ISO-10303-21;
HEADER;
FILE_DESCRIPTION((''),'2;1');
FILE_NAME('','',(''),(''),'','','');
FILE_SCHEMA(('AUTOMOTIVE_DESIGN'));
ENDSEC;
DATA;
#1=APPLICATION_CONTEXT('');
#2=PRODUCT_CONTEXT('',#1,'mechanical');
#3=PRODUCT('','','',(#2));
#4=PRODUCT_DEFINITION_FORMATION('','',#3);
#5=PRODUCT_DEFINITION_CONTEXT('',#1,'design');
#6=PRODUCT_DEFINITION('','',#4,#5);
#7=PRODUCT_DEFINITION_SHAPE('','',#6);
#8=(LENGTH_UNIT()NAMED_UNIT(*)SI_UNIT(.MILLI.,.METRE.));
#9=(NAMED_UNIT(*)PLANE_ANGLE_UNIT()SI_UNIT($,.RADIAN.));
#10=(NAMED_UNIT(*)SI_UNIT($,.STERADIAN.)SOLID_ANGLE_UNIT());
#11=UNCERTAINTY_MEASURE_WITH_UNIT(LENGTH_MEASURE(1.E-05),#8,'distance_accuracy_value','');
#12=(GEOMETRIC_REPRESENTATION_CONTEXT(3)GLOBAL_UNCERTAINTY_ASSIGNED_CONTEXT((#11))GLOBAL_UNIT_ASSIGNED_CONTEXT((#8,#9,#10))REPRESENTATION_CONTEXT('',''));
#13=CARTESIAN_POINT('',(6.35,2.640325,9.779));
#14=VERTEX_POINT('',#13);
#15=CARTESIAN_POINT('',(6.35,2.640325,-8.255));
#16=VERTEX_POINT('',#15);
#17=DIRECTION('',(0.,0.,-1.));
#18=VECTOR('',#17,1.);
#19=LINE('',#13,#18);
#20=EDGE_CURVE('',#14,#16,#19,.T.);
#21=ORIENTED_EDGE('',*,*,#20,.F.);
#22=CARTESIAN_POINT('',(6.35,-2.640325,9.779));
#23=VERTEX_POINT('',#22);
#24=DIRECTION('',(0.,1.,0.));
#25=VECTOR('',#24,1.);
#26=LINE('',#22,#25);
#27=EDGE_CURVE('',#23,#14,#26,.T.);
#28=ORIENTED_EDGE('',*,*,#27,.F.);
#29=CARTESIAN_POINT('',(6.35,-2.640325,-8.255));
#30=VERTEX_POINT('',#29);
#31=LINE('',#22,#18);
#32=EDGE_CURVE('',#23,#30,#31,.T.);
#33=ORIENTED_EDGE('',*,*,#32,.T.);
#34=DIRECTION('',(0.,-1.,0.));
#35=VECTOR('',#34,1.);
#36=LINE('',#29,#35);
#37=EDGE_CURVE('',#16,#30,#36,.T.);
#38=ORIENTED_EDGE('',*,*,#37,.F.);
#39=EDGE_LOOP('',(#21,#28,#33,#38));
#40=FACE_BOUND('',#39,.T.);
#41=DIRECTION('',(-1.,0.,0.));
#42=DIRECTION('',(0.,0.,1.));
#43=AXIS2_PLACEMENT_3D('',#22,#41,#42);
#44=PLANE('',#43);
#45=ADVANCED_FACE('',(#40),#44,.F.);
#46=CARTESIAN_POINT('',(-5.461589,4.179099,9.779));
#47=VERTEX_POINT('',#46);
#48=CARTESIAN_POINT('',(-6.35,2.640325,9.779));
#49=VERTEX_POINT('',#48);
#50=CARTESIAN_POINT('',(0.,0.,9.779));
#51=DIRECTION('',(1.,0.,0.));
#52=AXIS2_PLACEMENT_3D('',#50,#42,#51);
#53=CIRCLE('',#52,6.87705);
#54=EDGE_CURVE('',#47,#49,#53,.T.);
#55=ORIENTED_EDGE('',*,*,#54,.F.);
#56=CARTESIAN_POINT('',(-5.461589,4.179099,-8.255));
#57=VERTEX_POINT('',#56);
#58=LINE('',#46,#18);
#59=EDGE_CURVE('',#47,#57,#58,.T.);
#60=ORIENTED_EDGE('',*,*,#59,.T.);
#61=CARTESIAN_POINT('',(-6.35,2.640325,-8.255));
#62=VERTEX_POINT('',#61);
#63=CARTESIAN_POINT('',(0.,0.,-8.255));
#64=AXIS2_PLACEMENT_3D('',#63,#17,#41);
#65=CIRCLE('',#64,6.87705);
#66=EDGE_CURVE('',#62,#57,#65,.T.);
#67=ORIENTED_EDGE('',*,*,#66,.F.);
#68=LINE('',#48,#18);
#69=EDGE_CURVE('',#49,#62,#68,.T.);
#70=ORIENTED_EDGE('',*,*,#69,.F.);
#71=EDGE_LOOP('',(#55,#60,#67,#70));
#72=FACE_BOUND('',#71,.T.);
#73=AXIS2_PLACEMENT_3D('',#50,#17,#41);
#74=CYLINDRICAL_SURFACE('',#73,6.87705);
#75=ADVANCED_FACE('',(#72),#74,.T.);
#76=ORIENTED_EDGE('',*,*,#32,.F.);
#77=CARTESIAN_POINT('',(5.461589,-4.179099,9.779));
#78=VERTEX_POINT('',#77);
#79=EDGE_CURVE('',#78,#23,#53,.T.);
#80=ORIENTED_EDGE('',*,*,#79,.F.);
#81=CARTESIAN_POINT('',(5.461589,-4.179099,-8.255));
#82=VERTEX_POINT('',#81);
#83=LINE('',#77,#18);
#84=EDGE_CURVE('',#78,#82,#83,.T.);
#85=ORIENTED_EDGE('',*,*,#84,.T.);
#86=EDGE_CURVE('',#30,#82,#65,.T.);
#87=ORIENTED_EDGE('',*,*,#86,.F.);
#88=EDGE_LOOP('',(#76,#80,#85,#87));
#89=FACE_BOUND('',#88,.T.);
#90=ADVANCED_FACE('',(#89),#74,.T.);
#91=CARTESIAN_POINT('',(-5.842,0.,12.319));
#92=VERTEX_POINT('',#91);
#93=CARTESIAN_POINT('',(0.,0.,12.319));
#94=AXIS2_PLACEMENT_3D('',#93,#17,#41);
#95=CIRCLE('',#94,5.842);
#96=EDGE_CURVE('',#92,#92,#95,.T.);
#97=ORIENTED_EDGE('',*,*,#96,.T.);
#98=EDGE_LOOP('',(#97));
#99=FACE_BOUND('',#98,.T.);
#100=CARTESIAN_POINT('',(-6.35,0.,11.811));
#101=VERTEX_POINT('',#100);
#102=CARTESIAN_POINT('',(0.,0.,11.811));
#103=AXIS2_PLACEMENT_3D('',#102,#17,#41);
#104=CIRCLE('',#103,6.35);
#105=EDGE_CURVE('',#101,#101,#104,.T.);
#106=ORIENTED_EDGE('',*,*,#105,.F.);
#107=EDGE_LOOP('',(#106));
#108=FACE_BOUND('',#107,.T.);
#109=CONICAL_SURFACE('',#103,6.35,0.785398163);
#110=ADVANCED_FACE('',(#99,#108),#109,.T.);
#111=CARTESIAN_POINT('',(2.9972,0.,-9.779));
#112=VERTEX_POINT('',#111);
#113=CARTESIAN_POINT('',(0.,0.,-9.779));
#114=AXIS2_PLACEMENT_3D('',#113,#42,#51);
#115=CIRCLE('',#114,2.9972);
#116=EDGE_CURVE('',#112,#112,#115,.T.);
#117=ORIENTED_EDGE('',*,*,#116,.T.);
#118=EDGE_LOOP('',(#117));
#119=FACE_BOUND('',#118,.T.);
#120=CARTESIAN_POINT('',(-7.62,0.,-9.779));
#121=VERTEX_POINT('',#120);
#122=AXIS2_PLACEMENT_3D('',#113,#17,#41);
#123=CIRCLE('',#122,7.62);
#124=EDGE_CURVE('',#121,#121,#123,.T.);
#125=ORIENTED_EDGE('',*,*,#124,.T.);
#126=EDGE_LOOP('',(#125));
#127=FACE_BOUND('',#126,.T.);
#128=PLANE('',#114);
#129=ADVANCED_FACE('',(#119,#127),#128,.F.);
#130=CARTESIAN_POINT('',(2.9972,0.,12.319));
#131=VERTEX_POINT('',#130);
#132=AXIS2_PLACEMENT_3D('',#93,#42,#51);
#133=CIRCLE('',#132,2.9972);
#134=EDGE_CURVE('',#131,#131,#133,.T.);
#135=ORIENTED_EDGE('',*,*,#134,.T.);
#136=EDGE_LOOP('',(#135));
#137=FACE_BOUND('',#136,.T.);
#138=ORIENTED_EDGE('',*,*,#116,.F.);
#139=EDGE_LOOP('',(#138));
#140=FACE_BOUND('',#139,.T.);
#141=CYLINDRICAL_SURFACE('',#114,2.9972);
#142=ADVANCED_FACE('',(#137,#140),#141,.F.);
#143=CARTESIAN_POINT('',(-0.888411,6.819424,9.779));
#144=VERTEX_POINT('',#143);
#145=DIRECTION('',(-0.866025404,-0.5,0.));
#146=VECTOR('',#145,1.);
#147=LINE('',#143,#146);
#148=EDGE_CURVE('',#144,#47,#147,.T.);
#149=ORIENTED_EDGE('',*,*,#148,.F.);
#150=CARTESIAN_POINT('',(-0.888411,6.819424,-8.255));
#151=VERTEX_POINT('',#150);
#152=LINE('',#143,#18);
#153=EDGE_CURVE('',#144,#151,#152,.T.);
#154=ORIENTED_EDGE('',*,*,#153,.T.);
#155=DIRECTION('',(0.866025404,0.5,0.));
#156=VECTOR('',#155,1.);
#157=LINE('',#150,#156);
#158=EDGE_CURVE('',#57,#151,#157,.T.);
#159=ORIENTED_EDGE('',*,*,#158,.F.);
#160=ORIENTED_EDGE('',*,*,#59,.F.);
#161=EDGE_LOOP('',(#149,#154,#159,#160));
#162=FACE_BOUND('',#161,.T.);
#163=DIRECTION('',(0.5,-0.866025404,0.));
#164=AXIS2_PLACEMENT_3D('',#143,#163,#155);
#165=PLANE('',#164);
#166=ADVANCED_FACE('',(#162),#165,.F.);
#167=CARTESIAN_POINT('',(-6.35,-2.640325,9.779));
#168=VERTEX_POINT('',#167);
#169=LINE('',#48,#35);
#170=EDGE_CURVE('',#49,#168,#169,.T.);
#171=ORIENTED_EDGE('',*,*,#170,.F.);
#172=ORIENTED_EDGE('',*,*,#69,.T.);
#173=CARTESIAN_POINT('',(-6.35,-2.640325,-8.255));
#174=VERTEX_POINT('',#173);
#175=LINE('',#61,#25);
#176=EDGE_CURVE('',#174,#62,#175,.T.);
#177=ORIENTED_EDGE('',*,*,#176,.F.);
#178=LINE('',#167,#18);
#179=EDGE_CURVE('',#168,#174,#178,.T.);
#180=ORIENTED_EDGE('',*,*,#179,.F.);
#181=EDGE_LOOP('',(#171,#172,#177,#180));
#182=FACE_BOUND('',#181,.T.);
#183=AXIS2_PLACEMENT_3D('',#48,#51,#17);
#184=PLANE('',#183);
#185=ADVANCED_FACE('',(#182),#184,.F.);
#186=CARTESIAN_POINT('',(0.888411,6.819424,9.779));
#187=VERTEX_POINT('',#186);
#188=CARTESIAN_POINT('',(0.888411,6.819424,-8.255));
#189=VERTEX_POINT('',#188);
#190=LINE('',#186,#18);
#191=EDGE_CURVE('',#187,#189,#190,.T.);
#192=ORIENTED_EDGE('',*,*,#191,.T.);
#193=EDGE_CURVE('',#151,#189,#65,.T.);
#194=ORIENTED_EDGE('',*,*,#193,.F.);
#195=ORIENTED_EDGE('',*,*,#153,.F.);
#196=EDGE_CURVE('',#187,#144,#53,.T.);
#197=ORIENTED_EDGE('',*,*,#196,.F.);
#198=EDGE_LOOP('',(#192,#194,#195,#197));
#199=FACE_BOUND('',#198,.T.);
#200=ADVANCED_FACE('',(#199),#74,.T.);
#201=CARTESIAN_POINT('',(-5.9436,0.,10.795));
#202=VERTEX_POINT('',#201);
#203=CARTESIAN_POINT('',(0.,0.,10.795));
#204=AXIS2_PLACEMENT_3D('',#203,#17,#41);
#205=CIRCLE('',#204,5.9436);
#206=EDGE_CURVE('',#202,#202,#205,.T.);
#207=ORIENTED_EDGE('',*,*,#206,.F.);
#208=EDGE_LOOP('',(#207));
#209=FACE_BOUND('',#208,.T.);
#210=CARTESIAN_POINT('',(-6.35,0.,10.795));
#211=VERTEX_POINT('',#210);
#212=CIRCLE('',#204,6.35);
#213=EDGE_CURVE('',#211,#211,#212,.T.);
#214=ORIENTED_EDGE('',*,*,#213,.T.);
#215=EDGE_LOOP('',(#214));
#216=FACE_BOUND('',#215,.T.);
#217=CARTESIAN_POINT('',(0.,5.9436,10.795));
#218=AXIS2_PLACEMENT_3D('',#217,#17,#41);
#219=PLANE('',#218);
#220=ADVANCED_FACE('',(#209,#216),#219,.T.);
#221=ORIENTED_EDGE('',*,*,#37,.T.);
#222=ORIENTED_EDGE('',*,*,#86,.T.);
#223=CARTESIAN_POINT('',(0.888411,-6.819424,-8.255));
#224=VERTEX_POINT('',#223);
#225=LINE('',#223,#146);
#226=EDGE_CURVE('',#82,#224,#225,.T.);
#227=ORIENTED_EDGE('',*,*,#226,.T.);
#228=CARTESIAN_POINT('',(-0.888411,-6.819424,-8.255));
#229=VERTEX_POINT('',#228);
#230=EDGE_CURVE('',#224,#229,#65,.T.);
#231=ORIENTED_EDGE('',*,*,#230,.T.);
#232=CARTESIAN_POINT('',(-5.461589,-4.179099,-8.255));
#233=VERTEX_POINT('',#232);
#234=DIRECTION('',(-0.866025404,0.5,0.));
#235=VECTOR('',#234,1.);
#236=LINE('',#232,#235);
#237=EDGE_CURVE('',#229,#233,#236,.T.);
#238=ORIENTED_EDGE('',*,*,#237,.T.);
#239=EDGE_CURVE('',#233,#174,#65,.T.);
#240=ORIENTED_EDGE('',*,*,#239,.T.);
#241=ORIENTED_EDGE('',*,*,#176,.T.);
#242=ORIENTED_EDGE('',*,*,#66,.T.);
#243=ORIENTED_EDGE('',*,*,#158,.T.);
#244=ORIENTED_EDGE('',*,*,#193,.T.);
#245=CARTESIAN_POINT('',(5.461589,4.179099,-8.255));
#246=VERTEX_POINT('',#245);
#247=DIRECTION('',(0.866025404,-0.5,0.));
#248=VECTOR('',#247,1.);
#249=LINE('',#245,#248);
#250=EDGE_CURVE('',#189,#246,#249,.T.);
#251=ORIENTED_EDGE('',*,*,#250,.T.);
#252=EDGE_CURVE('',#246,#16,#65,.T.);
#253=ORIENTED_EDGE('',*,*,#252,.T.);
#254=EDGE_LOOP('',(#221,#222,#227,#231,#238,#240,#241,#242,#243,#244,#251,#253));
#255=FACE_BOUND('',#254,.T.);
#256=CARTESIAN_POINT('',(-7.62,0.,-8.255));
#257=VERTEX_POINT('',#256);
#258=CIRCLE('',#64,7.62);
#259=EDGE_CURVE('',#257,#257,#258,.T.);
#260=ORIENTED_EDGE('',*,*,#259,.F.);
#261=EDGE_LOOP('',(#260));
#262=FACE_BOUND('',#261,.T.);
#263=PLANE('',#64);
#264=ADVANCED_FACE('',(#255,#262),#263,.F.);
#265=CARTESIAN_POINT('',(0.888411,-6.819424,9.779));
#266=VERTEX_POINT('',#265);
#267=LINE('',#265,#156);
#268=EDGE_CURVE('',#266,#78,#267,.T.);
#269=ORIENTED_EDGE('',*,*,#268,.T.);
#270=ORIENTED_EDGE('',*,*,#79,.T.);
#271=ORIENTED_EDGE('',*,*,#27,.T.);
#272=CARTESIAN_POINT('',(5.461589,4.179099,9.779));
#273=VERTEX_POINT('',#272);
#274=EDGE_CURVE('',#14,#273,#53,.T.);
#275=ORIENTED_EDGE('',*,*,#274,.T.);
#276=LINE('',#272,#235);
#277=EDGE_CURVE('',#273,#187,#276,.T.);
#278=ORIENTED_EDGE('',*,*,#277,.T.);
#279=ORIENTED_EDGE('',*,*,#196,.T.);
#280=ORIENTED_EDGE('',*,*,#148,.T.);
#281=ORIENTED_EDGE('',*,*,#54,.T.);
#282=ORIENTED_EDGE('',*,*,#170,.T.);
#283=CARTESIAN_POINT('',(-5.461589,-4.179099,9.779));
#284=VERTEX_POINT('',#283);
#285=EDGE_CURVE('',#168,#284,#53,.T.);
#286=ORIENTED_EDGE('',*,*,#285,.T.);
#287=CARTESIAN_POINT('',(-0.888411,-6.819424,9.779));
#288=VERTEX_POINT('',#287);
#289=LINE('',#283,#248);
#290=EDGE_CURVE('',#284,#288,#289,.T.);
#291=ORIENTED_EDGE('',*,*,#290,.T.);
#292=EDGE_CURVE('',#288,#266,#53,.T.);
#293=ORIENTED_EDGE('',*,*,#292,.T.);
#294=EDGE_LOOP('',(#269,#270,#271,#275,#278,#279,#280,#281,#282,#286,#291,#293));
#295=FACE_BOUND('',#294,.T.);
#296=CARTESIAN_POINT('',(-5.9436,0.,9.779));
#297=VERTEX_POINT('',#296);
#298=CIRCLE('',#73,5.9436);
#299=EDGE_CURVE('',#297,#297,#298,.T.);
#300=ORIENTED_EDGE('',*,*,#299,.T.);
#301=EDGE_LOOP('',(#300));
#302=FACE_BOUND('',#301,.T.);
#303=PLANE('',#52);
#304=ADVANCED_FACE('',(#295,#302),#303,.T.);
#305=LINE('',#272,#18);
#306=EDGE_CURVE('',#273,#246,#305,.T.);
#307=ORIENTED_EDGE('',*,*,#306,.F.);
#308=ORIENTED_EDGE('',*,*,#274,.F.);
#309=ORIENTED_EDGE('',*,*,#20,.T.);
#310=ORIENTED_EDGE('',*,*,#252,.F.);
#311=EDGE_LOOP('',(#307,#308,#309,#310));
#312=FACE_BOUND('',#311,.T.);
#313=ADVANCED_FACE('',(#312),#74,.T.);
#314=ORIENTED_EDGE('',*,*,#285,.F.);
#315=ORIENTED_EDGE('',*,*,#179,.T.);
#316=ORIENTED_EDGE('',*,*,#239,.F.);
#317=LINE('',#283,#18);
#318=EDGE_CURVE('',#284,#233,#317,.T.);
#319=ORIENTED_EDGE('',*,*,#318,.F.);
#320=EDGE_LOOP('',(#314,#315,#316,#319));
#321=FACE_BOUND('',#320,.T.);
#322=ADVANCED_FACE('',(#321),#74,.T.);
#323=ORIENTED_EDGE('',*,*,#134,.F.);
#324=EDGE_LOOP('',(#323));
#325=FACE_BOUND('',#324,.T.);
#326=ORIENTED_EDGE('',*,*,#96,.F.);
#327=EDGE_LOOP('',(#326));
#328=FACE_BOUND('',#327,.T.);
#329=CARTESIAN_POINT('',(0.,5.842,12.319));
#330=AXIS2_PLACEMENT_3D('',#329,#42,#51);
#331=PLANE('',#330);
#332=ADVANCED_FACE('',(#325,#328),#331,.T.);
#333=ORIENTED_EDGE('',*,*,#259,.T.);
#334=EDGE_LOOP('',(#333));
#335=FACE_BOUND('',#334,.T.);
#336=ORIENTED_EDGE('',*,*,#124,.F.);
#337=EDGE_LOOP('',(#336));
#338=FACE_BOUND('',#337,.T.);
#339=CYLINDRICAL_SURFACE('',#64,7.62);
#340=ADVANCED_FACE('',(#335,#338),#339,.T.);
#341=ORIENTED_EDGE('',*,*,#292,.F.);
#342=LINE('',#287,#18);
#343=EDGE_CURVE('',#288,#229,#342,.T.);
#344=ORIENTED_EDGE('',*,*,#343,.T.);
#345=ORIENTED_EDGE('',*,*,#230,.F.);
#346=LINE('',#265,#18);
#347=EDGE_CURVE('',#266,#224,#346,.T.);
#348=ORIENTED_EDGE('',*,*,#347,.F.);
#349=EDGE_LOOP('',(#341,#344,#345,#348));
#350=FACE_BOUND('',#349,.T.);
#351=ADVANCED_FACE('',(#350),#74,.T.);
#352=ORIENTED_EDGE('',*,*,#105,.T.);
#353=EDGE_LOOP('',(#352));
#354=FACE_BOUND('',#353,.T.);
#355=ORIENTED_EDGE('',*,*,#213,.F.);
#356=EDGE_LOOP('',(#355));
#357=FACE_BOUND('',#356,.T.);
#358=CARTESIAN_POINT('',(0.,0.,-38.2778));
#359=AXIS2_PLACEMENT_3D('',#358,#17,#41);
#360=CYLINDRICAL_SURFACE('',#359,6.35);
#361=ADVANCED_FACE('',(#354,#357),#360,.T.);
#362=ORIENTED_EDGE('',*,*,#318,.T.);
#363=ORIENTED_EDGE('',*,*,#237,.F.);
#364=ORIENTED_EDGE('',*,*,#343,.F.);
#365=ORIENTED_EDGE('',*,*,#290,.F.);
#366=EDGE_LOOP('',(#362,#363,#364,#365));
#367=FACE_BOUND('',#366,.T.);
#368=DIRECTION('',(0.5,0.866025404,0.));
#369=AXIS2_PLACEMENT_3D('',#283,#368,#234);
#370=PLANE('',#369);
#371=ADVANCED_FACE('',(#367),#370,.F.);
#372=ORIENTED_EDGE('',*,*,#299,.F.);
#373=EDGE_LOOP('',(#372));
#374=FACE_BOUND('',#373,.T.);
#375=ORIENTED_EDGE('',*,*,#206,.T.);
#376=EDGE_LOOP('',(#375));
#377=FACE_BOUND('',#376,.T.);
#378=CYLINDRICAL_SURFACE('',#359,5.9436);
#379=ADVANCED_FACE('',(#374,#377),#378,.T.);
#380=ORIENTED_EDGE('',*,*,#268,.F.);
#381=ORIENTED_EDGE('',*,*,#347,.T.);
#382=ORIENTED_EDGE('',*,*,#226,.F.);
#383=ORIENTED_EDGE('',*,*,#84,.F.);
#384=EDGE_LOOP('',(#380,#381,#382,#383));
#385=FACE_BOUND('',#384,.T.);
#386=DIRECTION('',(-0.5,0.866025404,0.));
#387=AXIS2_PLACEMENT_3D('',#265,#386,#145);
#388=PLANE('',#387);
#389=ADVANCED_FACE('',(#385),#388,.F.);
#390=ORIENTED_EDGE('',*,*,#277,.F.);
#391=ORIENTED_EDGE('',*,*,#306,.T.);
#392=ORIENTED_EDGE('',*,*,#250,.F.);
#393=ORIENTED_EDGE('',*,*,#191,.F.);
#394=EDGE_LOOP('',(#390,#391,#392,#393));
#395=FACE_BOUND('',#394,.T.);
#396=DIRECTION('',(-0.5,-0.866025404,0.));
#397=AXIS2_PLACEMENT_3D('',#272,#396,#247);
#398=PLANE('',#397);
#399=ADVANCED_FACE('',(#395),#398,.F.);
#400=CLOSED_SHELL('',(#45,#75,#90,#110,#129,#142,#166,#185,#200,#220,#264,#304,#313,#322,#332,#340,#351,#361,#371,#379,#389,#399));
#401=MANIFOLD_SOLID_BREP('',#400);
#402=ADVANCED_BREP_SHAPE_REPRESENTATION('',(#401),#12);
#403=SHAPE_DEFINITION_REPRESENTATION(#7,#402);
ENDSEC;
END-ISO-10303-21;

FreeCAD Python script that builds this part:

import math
import FreeCAD as App
import Part
import Sketcher

V = App.Vector
Q = App.Units.Quantity

doc = App.newDocument("Part")
body = doc.addObject("PartDesign::Body", "Body")

# Sketch on XY plane
sketch1 = body.newObject("Sketcher::SketchObject", "Sketch")
sketch1.AttachmentSupport = (doc.getObject("XY_Plane"), [""])
sketch1.MapMode = "FlatFace"
sketch1.addGeometry(Part.Circle(V(0, 0, 0), V(0, 0, 1), 6), False)
sketch1.addConstraint([
    Sketcher.Constraint("Coincident", 0, 3, -1, 1),
    Sketcher.Constraint("Diameter", 0, Q("0.5 in")),
])
pad1 = body.newObject("PartDesign::Pad", "Pad")
pad1.Profile = sketch1
pad1.Type = "TwoLengths"
pad1.Length = Q("0.385 in")
pad1.Length2 = Q("0.385 in")

# Sketch on XY plane
sketch2 = body.newObject("Sketcher::SketchObject", "Sketch001")
sketch2.AttachmentSupport = (doc.getObject("XY_Plane"), [""])
sketch2.MapMode = "FlatFace"
sketch2.addGeometry([
    Part.LineSegment(V(-0.9, 6.8, 0), V(-5.5, 4.2, 0)),  # 0
    Part.ArcOfCircle(Part.Circle(V(0, 0, 0), V(0, 0, 1), 6.9), math.radians(142.58), math.radians(157.42)),  # 1
    Part.LineSegment(V(-6.3, 2.6, 0), V(-6.3, -2.6, 0)),  # 2
    Part.ArcOfCircle(Part.Circle(V(0, 0, 0), V(0, 0, 1), 6.9), math.radians(-157.42), math.radians(-142.58)),  # 3
    Part.LineSegment(V(-5.5, -4.2, 0), V(-0.9, -6.8, 0)),  # 4
    Part.ArcOfCircle(Part.Circle(V(0, 0, 0), V(0, 0, 1), 6.9), math.radians(-97.42), math.radians(-82.58)),  # 5
    Part.LineSegment(V(0.9, -6.8, 0), V(5.5, -4.2, 0)),  # 6
    Part.ArcOfCircle(Part.Circle(V(0, 0, 0), V(0, 0, 1), 6.9), math.radians(-37.42), math.radians(-22.58)),  # 7
    Part.LineSegment(V(6.3, -2.6, 0), V(6.3, 2.6, 0)),  # 8
    Part.ArcOfCircle(Part.Circle(V(0, 0, 0), V(0, 0, 1), 6.9), math.radians(22.58), math.radians(37.42)),  # 9
    Part.LineSegment(V(5.5, 4.2, 0), V(0.9, 6.8, 0)),  # 10
    Part.ArcOfCircle(Part.Circle(V(0, 0, 0), V(0, 0, 1), 6.9), math.radians(82.58), math.radians(97.42)),  # 11
], False)
sketch2.addConstraint([
    Sketcher.Constraint("Coincident", 0, 2, 1, 1),
    Sketcher.Constraint("Coincident", 1, 2, 2, 1),
    Sketcher.Constraint("Coincident", 2, 2, 3, 1),
    Sketcher.Constraint("Coincident", 3, 2, 4, 1),
    Sketcher.Constraint("Coincident", 4, 2, 5, 1),
    Sketcher.Constraint("Coincident", 5, 2, 6, 1),
    Sketcher.Constraint("Coincident", 6, 2, 7, 1),
    Sketcher.Constraint("Coincident", 7, 2, 8, 1),
    Sketcher.Constraint("Coincident", 8, 2, 9, 1),
    Sketcher.Constraint("Coincident", 9, 2, 10, 1),
    Sketcher.Constraint("Coincident", 10, 2, 11, 1),
    Sketcher.Constraint("Coincident", 11, 2, 0, 1),
    Sketcher.Constraint("Vertical", 2),
    Sketcher.Constraint("Vertical", 8),
    Sketcher.Constraint("Coincident", 1, 3, -1, 1),
    Sketcher.Constraint("Coincident", 3, 3, -1, 1),
    Sketcher.Constraint("Coincident", 5, 3, -1, 1),
    Sketcher.Constraint("Coincident", 7, 3, -1, 1),
    Sketcher.Constraint("Coincident", 9, 3, -1, 1),
    Sketcher.Constraint("Coincident", 11, 3, -1, 1),
    Sketcher.Constraint("Equal", 1, 3),
    Sketcher.Constraint("Equal", 3, 5),
    Sketcher.Constraint("Equal", 5, 7),
    Sketcher.Constraint("Equal", 7, 9),
    Sketcher.Constraint("Equal", 9, 11),
    Sketcher.Constraint("Parallel", 0, 6),
    Sketcher.Constraint("Parallel", 4, 10),
    Sketcher.Constraint("Horizontal", 4, 2, 5, 2),
    Sketcher.Constraint("Horizontal", 3, 2, 6, 2),
    Sketcher.Constraint("Horizontal", 2, 2, 7, 2),
    Sketcher.Constraint("Horizontal", 0, 2, 9, 2),
    Sketcher.Constraint("Vertical", 0, 2, 3, 2),
    Sketcher.Constraint("Angle", 0, Q("-150 deg")),
    Sketcher.Constraint("DistanceX", 1, 2, -1, 1, Q("0.25 in")),
    Sketcher.Constraint("DistanceX", 3, 2, 5, 2, Q("0.25 in")),
    Sketcher.Constraint("Radius", 1, Q("6.87705 mm")),
])
pad2 = body.newObject("PartDesign::Pad", "Pad001")
pad2.Profile = sketch2
pad2.Length = Q("0.77 in")
pad2.Midplane = True

# Sketch on YZ plane
sketch3 = body.newObject("Sketcher::SketchObject", "Sketch002")
sketch3.AttachmentSupport = (doc.getObject("YZ_Plane"), [""])
sketch3.MapMode = "FlatFace"
sketch3.addGeometry([
    Part.LineSegment(V(5.94, 9.78, 0), V(5.94, 10.79, 0)),  # 0
    Part.LineSegment(V(5.94, 10.79, 0), V(6.35, 10.79, 0)),  # 1
    Part.LineSegment(V(6.35, 10.79, 0), V(6.35, 11.81, 0)),  # 2
    Part.LineSegment(V(6.35, 11.81, 0), V(5.84, 12.32, 0)),  # 3
    Part.LineSegment(V(5.84, 12.32, 0), V(0, 12.32, 0)),  # 4
    Part.LineSegment(V(0, 12.32, 0), V(0, 9.78, 0)),  # 5
    Part.LineSegment(V(0, 9.78, 0), V(5.94, 9.78, 0)),  # 6
], False)
sketch3.addConstraint([
    Sketcher.Constraint("Coincident", 0, 2, 1, 1),
    Sketcher.Constraint("Coincident", 1, 2, 2, 1),
    Sketcher.Constraint("Coincident", 2, 2, 3, 1),
    Sketcher.Constraint("Coincident", 3, 2, 4, 1),
    Sketcher.Constraint("Coincident", 4, 2, 5, 1),
    Sketcher.Constraint("Coincident", 5, 2, 6, 1),
    Sketcher.Constraint("Coincident", 6, 2, 0, 1),
    Sketcher.Constraint("Vertical", 0),
    Sketcher.Constraint("Horizontal", 1),
    Sketcher.Constraint("Vertical", 2),
    Sketcher.Constraint("Horizontal", 4),
    Sketcher.Constraint("Vertical", 5),
    Sketcher.Constraint("Horizontal", 6),
    Sketcher.Constraint("PointOnObject", 4, 2, -2),
    Sketcher.Constraint("Equal", 0, 2),
    Sketcher.Constraint("DistanceY", 5, 2, 5, 1, Q("0.1 in")),
    Sketcher.Constraint("Angle", 3, Q("135 deg")),
    Sketcher.Constraint("DistanceX", 4, 2, 4, 1, Q("0.23 in")),
    Sketcher.Constraint("DistanceY", 0, 1, 0, 2, Q("0.04 in")),
    Sketcher.Constraint("DistanceX", 1, 1, 1, 2, Q("0.016 in")),
    Sketcher.Constraint("DistanceY", -1, 1, 0, 2, Q("0.425 in")),
])
revolution = body.newObject("PartDesign::Revolution", "Revolution")
revolution.Profile = sketch3
revolution.ReferenceAxis = (sketch3, ["V_Axis"])
revolution.Angle = 360

# Sketch on XY plane
sketch4 = body.newObject("Sketcher::SketchObject", "Sketch003")
sketch4.AttachmentSupport = (doc.getObject("XY_Plane"), [""])
sketch4.MapMode = "FlatFace"
sketch4.addGeometry(Part.Circle(V(0, 0, 0), V(0, 0, 1), 3), False)
sketch4.addConstraint([
    Sketcher.Constraint("Coincident", 0, 3, -1, 1),
    Sketcher.Constraint("Diameter", 0, Q("0.236 in")),
])
pocket1 = body.newObject("PartDesign::Pocket", "Pocket")
pocket1.Profile = sketch4
pocket1.Type = "ThroughAll"
pocket1.Midplane = True

# Sketch on XY plane
sketch5 = body.newObject("Sketcher::SketchObject", "Sketch004")
sketch5.AttachmentSupport = (doc.getObject("XY_Plane"), [""])
sketch5.MapMode = "FlatFace"
sketch5.AttachmentOffset = App.Placement(V(0, 0, -0.385 * 25.4), App.Rotation())
sketch5.addGeometry([
    Part.Circle(V(0, 0, 0), V(0, 0, 1), 7.6),
    Part.Circle(V(0, 0, 0), V(0, 0, 1), 3),
], False)
sketch5.addConstraint([
    Sketcher.Constraint("Coincident", 0, 3, -1, 1),
    Sketcher.Constraint("Coincident", 1, 3, -1, 1),
    Sketcher.Constraint("Diameter", 0, Q("0.6 in")),
    Sketcher.Constraint("Diameter", 1, Q("0.236 in")),
])
pad3 = body.newObject("PartDesign::Pad", "Pad002")
pad3.Profile = sketch5
pad3.Length = Q("0.06 in")

doc.recompute()
